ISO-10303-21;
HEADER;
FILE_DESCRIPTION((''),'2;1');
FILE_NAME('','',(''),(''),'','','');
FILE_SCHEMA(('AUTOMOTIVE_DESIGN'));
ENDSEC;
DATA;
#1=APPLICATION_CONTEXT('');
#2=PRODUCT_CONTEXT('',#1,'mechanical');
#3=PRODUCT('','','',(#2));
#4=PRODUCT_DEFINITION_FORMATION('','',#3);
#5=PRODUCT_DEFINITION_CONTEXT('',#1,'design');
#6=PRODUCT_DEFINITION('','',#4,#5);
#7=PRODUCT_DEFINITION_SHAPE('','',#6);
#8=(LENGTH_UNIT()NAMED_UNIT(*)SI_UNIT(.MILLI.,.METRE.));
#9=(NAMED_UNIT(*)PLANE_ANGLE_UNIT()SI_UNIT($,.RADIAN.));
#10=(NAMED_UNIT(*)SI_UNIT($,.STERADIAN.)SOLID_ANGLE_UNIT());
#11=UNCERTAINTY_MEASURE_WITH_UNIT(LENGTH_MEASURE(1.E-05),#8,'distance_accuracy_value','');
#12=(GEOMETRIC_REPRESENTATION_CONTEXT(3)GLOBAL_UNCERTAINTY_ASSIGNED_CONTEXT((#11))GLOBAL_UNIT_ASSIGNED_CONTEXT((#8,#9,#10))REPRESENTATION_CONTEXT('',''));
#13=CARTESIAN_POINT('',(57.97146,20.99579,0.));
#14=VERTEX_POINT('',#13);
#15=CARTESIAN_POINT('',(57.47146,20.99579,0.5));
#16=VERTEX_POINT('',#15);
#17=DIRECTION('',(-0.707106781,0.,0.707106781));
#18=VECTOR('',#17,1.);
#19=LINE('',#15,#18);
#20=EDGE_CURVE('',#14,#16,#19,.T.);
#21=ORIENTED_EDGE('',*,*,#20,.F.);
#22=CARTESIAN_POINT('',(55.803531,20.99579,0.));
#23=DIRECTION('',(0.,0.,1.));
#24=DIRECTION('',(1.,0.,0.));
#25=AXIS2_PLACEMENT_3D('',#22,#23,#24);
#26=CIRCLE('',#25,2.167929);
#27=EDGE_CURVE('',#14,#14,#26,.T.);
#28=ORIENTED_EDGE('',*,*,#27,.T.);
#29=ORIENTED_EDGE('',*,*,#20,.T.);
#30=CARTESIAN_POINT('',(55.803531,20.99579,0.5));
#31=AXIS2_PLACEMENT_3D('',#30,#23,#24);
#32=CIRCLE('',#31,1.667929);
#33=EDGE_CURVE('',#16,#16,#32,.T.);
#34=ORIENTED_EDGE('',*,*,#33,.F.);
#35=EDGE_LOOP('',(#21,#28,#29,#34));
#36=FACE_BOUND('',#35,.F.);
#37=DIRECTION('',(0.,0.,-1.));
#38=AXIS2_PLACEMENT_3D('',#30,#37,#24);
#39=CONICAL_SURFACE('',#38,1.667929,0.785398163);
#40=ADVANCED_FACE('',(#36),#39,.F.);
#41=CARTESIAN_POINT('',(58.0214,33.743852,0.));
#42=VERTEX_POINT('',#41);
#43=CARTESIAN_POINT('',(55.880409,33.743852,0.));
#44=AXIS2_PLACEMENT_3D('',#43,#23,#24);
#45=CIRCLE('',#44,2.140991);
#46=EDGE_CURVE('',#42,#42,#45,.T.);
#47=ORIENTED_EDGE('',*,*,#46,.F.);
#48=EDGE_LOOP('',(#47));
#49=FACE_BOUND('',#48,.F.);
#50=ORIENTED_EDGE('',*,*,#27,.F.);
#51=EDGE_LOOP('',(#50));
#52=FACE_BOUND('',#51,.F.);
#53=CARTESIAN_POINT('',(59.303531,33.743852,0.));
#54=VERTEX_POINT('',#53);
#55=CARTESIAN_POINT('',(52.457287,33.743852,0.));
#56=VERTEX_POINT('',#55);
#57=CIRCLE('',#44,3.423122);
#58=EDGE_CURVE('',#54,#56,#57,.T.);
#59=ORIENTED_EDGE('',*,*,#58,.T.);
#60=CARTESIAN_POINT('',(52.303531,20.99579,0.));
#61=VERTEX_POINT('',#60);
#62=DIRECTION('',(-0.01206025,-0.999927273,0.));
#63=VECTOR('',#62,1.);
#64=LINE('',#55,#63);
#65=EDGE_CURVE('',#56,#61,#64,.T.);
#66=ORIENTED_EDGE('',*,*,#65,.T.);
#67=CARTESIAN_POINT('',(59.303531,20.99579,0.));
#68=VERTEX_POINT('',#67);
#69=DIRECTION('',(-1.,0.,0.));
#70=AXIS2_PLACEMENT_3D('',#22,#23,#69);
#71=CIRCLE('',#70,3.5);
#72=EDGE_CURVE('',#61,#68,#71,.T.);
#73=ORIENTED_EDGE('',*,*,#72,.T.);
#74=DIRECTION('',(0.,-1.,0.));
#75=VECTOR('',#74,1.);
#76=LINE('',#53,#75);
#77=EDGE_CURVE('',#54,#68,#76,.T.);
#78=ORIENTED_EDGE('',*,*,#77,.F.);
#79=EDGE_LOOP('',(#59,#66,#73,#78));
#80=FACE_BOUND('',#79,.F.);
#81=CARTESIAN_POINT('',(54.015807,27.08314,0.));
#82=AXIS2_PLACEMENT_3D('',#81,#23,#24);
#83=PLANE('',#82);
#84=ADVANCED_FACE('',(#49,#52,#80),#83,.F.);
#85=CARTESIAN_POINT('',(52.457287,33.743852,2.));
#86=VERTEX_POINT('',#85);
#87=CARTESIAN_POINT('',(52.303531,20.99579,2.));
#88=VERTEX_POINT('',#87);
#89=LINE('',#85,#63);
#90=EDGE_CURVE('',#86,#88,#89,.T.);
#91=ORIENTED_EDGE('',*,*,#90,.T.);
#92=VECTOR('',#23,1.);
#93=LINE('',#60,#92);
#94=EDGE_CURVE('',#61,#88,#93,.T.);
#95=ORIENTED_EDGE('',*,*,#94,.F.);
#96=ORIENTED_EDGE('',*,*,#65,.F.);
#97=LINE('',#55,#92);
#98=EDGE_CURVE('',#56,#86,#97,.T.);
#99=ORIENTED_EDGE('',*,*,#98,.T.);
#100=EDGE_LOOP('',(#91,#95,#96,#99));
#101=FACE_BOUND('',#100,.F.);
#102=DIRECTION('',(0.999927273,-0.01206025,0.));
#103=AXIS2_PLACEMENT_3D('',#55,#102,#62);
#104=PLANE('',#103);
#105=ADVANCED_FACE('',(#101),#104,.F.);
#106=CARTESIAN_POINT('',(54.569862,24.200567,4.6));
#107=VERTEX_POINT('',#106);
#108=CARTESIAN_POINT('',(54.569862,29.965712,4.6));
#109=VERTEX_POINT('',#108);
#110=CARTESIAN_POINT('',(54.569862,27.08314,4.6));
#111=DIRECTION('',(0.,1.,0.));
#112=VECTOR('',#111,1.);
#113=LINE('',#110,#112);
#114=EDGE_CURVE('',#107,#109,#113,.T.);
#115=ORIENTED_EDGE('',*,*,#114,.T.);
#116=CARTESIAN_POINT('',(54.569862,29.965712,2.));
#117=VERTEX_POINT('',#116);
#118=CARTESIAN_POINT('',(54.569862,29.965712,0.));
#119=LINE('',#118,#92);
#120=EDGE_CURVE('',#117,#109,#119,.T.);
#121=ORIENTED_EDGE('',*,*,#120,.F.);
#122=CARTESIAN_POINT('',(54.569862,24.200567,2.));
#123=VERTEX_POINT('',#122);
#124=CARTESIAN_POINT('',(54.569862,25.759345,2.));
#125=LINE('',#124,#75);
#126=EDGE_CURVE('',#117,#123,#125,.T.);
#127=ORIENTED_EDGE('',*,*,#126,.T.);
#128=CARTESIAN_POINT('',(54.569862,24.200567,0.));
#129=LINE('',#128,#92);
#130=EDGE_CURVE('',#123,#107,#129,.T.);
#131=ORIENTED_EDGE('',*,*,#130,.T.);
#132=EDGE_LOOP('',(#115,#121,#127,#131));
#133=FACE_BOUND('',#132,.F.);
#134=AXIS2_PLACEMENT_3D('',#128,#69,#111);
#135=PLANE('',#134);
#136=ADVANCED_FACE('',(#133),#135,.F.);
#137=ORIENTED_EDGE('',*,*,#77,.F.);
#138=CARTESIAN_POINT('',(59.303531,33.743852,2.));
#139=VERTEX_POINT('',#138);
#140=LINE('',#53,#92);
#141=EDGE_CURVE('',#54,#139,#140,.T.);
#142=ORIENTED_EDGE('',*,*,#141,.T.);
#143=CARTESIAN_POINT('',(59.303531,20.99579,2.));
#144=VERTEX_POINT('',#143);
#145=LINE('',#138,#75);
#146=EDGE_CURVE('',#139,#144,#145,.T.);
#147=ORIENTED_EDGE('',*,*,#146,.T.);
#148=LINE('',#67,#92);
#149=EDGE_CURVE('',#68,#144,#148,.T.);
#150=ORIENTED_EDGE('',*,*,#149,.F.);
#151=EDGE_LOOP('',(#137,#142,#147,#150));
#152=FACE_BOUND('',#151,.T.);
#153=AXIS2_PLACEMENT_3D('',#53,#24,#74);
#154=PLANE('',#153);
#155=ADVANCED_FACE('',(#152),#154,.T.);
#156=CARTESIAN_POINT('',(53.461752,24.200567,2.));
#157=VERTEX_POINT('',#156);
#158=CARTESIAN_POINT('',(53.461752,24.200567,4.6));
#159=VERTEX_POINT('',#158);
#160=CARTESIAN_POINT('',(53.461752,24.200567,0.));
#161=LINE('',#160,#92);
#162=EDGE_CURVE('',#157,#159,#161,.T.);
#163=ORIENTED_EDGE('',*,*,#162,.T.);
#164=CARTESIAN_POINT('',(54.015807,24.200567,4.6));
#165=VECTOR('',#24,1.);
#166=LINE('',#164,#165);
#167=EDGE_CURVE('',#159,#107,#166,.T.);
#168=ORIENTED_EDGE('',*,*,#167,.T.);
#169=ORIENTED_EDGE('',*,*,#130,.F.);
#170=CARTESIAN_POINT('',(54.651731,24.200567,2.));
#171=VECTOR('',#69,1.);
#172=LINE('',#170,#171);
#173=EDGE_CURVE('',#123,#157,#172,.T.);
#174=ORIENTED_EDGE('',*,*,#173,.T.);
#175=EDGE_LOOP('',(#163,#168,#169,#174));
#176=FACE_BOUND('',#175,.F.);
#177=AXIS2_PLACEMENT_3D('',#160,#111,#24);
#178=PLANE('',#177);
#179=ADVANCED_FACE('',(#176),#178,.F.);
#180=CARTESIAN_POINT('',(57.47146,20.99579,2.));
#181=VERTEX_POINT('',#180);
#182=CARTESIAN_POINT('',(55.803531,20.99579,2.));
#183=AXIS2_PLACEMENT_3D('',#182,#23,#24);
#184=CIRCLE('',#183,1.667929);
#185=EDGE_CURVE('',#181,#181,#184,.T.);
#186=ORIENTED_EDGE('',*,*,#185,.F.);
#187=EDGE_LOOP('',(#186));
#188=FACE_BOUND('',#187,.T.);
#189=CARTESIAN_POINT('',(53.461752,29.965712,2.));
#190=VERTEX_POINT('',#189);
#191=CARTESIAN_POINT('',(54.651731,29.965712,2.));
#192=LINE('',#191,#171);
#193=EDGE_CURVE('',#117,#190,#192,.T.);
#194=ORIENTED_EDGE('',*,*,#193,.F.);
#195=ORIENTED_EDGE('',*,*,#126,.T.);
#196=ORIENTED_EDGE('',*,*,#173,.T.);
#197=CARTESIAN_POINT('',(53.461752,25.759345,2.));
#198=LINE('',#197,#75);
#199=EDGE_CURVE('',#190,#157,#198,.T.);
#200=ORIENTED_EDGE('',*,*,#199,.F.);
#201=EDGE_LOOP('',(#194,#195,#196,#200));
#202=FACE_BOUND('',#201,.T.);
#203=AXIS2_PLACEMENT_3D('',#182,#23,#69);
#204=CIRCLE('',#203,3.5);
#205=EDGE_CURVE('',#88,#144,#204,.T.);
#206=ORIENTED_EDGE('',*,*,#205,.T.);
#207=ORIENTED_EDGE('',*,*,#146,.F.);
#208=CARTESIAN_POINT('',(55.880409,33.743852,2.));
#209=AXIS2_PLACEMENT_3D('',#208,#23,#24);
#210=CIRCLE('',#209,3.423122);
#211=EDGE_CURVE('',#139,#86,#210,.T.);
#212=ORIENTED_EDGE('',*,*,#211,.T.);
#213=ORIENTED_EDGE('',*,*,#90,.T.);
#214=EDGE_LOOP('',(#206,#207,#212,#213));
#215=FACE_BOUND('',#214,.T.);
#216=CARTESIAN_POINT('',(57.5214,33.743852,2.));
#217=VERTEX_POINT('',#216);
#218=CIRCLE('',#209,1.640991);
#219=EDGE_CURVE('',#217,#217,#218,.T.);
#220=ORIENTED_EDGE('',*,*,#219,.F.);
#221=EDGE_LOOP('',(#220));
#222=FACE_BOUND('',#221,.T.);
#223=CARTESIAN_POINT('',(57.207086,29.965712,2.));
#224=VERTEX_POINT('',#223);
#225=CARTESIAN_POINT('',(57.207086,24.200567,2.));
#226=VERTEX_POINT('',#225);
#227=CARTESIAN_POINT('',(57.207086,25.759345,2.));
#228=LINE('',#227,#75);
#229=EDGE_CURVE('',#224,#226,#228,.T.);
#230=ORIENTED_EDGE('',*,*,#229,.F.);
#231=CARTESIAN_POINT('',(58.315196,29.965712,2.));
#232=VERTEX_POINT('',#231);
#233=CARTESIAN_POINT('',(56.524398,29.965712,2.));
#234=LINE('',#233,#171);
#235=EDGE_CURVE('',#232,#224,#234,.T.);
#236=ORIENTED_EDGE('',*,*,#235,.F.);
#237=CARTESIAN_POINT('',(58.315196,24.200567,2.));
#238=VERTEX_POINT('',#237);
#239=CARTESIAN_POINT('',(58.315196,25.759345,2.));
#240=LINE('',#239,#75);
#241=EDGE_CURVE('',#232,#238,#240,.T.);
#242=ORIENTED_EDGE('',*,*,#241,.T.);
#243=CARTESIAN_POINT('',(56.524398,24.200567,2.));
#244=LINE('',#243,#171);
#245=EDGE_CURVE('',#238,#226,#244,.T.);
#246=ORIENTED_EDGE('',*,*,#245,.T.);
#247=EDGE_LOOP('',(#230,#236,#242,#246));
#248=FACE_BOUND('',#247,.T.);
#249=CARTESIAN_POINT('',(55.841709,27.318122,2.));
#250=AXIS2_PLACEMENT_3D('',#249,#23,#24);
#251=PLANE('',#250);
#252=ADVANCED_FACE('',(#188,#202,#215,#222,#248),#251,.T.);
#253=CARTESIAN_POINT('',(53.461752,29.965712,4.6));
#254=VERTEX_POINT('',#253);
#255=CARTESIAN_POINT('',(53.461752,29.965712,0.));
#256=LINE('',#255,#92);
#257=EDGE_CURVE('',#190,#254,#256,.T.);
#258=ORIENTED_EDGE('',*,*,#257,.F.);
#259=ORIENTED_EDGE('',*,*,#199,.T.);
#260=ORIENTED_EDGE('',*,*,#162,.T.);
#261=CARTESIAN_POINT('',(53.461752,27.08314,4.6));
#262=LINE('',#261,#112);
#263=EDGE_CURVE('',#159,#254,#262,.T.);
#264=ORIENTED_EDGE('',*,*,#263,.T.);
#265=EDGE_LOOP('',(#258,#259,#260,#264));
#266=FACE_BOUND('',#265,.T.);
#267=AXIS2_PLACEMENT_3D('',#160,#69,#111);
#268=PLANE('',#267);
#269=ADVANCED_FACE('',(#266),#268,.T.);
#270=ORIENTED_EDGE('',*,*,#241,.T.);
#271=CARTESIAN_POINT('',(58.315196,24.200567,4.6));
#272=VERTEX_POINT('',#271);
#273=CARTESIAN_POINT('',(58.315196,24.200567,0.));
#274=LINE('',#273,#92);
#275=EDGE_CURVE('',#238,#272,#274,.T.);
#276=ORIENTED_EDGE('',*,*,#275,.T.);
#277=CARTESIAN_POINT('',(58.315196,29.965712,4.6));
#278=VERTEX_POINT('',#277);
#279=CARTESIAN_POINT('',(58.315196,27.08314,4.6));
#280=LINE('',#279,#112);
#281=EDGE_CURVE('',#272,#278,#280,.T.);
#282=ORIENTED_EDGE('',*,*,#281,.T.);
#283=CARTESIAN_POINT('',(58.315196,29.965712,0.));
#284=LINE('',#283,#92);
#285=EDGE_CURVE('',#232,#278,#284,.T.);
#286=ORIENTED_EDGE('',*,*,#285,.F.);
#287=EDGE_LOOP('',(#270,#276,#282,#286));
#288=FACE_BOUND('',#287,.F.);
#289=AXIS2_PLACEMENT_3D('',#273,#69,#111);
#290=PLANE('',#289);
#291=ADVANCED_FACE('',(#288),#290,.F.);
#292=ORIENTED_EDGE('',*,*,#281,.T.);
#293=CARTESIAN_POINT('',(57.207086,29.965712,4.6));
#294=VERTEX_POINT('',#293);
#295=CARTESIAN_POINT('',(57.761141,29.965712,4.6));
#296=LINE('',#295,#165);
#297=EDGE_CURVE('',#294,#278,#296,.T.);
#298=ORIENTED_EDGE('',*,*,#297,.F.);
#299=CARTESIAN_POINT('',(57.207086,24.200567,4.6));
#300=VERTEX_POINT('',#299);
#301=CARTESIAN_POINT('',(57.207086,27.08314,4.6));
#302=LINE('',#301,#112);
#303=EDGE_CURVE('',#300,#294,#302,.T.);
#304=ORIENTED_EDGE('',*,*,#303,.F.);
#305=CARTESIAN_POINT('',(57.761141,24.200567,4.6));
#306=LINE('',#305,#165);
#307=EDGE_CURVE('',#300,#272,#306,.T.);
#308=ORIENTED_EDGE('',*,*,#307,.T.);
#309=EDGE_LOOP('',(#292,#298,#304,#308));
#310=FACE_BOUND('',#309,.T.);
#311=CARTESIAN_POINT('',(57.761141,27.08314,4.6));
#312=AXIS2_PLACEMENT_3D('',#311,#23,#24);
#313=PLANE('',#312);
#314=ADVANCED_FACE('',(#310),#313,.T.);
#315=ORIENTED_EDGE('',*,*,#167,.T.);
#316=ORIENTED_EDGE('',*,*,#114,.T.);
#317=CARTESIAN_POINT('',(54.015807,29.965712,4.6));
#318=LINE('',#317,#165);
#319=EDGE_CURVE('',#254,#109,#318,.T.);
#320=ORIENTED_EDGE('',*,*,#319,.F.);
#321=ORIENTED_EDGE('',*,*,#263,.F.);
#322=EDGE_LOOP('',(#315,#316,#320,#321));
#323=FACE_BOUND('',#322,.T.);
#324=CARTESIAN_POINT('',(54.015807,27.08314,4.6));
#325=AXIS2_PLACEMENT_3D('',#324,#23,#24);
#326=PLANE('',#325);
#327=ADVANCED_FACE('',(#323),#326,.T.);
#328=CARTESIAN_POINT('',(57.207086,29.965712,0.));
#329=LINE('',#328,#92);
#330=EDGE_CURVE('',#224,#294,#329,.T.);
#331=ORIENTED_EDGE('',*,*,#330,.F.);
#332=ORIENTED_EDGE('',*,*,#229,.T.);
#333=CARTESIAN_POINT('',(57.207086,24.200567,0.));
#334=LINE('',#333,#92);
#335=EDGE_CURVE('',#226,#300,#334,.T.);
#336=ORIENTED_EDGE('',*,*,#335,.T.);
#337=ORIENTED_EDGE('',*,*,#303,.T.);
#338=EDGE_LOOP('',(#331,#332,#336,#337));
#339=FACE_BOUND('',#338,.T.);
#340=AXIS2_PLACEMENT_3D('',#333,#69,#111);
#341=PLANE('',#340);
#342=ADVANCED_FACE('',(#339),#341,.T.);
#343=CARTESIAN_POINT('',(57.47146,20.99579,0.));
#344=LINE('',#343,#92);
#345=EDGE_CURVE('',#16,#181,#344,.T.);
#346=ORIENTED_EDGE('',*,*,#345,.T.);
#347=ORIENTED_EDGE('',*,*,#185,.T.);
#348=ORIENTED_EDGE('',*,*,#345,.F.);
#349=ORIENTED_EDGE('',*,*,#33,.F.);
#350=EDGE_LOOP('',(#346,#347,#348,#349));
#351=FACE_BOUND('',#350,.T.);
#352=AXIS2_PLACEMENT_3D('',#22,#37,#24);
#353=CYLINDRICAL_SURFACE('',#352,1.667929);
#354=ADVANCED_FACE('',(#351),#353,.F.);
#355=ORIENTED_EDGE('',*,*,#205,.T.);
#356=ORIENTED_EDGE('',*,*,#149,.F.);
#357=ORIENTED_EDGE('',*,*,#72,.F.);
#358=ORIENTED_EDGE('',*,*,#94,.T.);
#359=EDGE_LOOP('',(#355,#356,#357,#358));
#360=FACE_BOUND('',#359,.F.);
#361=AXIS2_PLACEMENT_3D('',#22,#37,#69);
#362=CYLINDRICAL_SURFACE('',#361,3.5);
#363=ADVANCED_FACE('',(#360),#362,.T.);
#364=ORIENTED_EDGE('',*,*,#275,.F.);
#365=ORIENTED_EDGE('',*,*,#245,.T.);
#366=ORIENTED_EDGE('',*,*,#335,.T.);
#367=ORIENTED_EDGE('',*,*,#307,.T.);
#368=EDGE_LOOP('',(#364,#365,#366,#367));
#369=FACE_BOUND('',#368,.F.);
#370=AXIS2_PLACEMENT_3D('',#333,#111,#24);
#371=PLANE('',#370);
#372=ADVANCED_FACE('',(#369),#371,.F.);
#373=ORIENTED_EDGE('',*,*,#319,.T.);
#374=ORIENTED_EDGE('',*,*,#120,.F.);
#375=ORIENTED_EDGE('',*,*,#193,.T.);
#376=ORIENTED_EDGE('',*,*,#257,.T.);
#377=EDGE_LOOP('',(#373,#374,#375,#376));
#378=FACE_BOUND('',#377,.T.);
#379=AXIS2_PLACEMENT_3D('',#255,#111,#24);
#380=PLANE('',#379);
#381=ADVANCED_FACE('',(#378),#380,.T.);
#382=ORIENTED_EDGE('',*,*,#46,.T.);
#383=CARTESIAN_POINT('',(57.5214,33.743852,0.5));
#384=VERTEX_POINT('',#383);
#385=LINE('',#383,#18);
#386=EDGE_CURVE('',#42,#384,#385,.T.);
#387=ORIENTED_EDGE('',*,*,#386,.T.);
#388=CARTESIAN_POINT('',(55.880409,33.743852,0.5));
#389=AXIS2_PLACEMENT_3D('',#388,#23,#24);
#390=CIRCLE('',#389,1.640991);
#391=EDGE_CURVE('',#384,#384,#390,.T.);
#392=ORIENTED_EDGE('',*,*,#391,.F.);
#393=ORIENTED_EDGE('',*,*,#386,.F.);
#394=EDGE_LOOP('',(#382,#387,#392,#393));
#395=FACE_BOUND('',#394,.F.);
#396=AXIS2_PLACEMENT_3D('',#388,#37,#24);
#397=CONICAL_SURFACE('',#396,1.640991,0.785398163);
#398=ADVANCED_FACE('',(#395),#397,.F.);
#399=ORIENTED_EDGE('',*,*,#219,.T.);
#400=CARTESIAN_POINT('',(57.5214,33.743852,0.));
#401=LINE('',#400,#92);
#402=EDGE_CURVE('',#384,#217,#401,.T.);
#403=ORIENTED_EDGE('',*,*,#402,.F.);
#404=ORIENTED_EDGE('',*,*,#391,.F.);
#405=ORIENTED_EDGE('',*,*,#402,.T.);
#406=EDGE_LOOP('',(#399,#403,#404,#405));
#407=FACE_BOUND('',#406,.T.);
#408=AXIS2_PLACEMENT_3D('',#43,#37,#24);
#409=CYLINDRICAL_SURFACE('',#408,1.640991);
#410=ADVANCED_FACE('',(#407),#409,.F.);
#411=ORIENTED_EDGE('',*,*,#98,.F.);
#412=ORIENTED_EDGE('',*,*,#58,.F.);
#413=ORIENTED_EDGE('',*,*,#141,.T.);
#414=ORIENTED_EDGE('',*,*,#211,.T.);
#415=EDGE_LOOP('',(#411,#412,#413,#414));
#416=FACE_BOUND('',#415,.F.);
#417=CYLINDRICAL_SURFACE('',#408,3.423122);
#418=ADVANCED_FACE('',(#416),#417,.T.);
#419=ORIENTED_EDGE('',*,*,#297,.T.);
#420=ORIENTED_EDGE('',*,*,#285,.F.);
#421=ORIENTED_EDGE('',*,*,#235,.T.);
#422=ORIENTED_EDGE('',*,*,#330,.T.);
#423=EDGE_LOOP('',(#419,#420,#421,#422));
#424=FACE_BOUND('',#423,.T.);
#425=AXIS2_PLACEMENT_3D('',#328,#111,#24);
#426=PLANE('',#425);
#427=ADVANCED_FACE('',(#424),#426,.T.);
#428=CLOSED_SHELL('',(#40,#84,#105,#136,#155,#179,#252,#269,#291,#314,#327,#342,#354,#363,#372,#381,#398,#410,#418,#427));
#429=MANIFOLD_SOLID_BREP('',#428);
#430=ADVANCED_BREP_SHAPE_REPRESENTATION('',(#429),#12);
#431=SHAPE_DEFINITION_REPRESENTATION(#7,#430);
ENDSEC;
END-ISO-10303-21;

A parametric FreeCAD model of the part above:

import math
import FreeCAD as App
import Part
import Sketcher

V = App.Vector


def edges_at(feature, points):
    """Names of the edges that pass closest to the given points."""
    edges = feature.Shape.Edges
    near = lambda p: min(range(len(edges)), key=lambda i: edges[i].distToShape(Part.Vertex(*p))[0])
    return sorted({f"Edge{near(p) + 1}" for p in points})


def add_polygon(sketch, points):
    """Adds a closed chain of lines whose ends are joined by coincident constraints."""
    first, n = sketch.GeometryCount, len(points)
    for a, b in zip(points, points[1:] + points[:1]):
        sketch.addGeometry(Part.LineSegment(App.Vector(*a, 0), App.Vector(*b, 0)), False)
    for i in range(n):
        sketch.addConstraint(Sketcher.Constraint("Coincident", first + i, 2, first + (i + 1) % n, 1))

doc = App.newDocument("Part")
body = doc.addObject("PartDesign::Body", "Body")

# Sketch on XY plane
sketch1 = body.newObject("Sketcher::SketchObject", "Sketch")
sketch1.AttachmentSupport = (doc.getObject("XY_Plane"), [""])
sketch1.MapMode = "FlatFace"
sketch1.addGeometry(Part.ArcOfCircle(Part.Circle(V(55.880409, 33.743852, 0), V(0, 0, 1), 3.423122), math.radians(0), math.radians(180)), False)
sketch1.addGeometry(Part.LineSegment(V(52.457287, 33.743852, 0), V(52.303531, 20.99579, 0)), False)
sketch1.addGeometry(Part.ArcOfCircle(Part.Circle(V(55.803531, 20.99579, 0), V(0, 0, 1), 3.5), math.radians(180), math.radians(360)), False)
sketch1.addGeometry(Part.LineSegment(V(59.303531, 20.99579, 0), V(59.303531, 33.743852, 0)), False)
sketch1.addGeometry(Part.Circle(V(55.803531, 20.99579, 0), V(0, 0, 1), 1.667929), False)
sketch1.addGeometry(Part.Circle(V(55.880409, 33.743852, 0), V(0, 0, 1), 1.640991), False)
sketch1.addConstraint(Sketcher.Constraint("Coincident", 0, 2, 1, 1))
sketch1.addConstraint(Sketcher.Constraint("Coincident", 1, 2, 2, 1))
sketch1.addConstraint(Sketcher.Constraint("Tangent", 2, 2, 3, 1))
sketch1.addConstraint(Sketcher.Constraint("Tangent", 3, 2, 0, 1))
sketch1.addConstraint(Sketcher.Constraint("Vertical", 3))
sketch1.addConstraint(Sketcher.Constraint("Coincident", 4, 3, 2, 3))
sketch1.addConstraint(Sketcher.Constraint("Coincident", 5, 3, 0, 3))
sketch1.addConstraint(Sketcher.Constraint("Horizontal", 5, 3, 0, 2))
sketch1.addConstraint(Sketcher.Constraint("Horizontal", 4, 3, 1, 2))
sketch1.addConstraint(Sketcher.Constraint("Radius", 2, 3.5))
sketch1.addConstraint(Sketcher.Constraint("Diameter", 4, 3.335858))
sketch1.addConstraint(Sketcher.Constraint("Diameter", 5, 3.281982))
sketch1.addConstraint(Sketcher.Constraint("Radius", 0, 3.423122))
sketch1.addConstraint(Sketcher.Constraint("DistanceY", 3, 1, 3, 2, 12.748062))
sketch1.addConstraint(Sketcher.Constraint("DistanceX", -1, 1, 0, 3, 55.880409))
sketch1.addConstraint(Sketcher.Constraint("DistanceY", -1, 1, 0, 3, 33.743852))
pad1 = body.newObject("PartDesign::Pad", "Pad")
pad1.Profile = sketch1
pad1.Length = 2

# Sketch on XY plane
sketch2 = body.newObject("Sketcher::SketchObject", "Sketch001")
sketch2.AttachmentSupport = (doc.getObject("XY_Plane"), [""])
sketch2.MapMode = "FlatFace"
add_polygon(sketch2, [(53.461752, 29.965712), (53.461752, 24.200567), (54.569862, 24.200567), (54.569862, 29.965712)])  # lines 0-3
add_polygon(sketch2, [(57.207086, 29.965712), (57.207086, 24.200567), (58.315196, 24.200567), (58.315196, 29.965712)])  # lines 4-7
sketch2.addConstraint(Sketcher.Constraint("Vertical", 0))
sketch2.addConstraint(Sketcher.Constraint("Horizontal", 1))
sketch2.addConstraint(Sketcher.Constraint("Vertical", 2))
sketch2.addConstraint(Sketcher.Constraint("Horizontal", 3))
sketch2.addConstraint(Sketcher.Constraint("Vertical", 4))
sketch2.addConstraint(Sketcher.Constraint("Horizontal", 5))
sketch2.addConstraint(Sketcher.Constraint("Vertical", 6))
sketch2.addConstraint(Sketcher.Constraint("Horizontal", 7))
sketch2.addConstraint(Sketcher.Constraint("Horizontal", 1, 2, 4, 2))
sketch2.addConstraint(Sketcher.Constraint("Horizontal", 3, 2, 6, 2))
sketch2.addConstraint(Sketcher.Constraint("Equal", 3, 5))
sketch2.addConstraint(Sketcher.Constraint("DistanceX", 1, 1, 1, 2, 1.10811))
sketch2.addConstraint(Sketcher.Constraint("DistanceY", 0, 2, 0, 1, 5.765145))
sketch2.addConstraint(Sketcher.Constraint("DistanceX", -1, 1, 0, 2, 53.461752))
sketch2.addConstraint(Sketcher.Constraint("DistanceY", -1, 1, 0, 2, 24.200567))
sketch2.addConstraint(Sketcher.Constraint("DistanceX", -1, 1, 4, 2, 57.207086))
pad2 = body.newObject("PartDesign::Pad", "Pad001")
pad2.Profile = sketch2
pad2.Length = 4.6
doc.recompute()

chamfer = body.newObject("PartDesign::Chamfer", "Chamfer")
chamfer.Base = (pad2, edges_at(pad2, [(54.136, 20.996, 0), (54.239, 33.744, 0)]))
chamfer.Size = 0.5

doc.recompute()
